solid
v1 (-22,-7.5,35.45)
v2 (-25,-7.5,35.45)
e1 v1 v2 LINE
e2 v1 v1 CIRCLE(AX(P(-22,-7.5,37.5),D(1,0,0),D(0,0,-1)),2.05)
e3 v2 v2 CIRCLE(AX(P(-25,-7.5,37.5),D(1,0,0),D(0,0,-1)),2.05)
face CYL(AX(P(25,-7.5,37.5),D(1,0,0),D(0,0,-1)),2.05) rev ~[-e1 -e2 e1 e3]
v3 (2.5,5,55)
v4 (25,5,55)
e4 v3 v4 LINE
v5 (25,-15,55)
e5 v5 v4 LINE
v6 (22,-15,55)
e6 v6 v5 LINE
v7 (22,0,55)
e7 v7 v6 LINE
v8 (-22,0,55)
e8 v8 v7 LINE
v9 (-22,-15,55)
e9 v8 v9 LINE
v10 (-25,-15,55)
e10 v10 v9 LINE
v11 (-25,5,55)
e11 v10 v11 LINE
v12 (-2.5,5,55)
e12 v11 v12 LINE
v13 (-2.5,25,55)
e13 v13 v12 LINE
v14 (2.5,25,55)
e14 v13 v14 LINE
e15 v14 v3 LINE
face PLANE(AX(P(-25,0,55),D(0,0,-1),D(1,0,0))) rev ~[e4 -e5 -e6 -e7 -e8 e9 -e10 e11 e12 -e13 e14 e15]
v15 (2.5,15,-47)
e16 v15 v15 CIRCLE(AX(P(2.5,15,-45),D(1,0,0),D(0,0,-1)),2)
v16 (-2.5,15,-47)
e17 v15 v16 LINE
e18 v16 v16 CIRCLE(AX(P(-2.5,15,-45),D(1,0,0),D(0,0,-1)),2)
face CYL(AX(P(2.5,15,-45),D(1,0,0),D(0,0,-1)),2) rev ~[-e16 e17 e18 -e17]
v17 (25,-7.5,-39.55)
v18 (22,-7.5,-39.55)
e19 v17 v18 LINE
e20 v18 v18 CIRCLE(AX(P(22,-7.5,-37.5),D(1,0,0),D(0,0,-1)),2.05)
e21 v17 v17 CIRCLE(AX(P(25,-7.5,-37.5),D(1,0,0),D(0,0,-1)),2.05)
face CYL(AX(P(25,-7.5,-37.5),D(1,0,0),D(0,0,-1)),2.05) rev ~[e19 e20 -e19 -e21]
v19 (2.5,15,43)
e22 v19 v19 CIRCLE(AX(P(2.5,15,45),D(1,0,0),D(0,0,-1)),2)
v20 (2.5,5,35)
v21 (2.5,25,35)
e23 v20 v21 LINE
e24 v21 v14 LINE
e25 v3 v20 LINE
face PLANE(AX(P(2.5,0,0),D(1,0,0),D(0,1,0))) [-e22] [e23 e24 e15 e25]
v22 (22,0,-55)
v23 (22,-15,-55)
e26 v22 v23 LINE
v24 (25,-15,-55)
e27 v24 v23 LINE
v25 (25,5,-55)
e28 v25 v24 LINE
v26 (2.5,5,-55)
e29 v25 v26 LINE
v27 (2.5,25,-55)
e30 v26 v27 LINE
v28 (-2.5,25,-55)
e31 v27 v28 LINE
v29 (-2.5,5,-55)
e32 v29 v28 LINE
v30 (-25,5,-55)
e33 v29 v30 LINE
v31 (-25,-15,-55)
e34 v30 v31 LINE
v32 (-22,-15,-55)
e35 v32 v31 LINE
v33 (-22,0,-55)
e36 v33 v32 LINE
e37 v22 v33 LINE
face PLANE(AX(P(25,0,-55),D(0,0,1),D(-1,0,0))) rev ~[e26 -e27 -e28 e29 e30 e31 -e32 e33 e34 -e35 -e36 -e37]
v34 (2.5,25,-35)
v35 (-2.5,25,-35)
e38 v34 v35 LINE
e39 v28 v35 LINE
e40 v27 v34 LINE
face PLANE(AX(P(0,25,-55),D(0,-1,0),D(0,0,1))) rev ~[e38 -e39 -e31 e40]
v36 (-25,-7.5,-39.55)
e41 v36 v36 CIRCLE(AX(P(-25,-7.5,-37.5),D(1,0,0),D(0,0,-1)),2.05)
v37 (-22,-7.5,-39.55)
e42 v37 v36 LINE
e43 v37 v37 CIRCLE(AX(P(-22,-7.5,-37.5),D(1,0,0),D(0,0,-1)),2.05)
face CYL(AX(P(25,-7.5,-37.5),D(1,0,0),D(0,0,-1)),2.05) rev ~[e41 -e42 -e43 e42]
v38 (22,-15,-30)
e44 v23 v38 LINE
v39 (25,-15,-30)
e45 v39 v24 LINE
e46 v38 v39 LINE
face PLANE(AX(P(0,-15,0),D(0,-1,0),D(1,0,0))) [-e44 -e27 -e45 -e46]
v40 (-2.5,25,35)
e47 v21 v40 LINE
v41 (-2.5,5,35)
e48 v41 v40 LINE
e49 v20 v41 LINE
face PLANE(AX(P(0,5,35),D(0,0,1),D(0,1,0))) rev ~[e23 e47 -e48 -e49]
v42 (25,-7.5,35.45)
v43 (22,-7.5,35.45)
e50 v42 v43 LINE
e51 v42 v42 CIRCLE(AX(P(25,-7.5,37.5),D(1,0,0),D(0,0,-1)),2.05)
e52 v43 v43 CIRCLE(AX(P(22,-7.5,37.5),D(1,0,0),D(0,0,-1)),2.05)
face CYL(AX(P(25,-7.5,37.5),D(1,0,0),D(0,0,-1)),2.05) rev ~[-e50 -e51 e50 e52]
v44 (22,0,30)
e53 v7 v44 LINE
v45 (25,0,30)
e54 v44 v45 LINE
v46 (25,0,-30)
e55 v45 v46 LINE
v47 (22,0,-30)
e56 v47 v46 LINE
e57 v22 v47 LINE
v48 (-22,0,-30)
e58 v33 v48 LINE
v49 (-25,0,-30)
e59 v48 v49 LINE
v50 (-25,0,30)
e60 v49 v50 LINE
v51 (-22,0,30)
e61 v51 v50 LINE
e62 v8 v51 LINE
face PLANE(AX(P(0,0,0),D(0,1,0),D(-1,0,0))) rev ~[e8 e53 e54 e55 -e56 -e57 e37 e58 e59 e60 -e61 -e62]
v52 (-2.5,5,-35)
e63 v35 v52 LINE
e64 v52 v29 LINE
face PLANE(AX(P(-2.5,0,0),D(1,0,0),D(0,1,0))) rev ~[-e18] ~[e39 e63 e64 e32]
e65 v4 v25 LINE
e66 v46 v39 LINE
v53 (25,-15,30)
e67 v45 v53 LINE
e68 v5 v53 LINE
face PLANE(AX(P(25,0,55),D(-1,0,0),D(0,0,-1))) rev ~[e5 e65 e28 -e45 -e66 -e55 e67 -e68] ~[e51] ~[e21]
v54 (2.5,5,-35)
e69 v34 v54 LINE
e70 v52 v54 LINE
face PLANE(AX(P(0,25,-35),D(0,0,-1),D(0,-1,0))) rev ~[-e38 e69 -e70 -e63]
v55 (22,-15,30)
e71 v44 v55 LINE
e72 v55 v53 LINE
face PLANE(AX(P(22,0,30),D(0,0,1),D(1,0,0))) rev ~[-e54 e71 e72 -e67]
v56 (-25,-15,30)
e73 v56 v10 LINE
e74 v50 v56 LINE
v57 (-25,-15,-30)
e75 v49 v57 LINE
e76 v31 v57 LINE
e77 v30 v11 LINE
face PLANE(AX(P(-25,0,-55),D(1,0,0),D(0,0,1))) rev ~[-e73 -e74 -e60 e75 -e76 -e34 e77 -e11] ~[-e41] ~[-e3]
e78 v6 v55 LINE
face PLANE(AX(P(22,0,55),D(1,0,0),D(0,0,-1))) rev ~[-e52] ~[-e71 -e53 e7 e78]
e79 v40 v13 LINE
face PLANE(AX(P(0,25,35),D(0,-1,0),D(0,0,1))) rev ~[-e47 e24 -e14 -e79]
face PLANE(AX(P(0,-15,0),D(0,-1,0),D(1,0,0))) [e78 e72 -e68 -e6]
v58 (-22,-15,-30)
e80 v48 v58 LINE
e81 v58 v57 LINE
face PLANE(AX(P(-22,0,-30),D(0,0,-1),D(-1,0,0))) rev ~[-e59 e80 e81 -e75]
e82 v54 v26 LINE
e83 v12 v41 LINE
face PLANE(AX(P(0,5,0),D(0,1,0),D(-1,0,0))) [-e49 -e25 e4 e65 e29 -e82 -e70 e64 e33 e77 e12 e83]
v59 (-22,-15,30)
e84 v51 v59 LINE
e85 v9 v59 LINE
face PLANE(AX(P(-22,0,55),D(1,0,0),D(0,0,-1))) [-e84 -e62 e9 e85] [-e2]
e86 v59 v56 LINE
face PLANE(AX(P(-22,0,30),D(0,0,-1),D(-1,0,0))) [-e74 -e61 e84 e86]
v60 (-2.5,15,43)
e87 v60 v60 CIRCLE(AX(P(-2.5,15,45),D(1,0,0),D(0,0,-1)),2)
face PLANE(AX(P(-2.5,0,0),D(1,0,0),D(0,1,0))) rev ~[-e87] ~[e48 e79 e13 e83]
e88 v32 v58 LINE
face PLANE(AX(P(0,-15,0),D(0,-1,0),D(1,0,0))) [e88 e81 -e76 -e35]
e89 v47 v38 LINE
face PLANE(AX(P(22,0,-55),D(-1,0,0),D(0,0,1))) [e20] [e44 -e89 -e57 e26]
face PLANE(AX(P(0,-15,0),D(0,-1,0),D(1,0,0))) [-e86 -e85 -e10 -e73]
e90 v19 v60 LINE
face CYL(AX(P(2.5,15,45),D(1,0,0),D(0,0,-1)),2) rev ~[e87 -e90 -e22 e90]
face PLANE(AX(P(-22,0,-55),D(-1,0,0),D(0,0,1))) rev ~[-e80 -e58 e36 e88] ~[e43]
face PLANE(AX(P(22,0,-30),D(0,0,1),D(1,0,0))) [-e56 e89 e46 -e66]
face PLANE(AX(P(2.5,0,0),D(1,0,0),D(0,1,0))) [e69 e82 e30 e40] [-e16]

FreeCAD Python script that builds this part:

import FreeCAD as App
import Part
import Sketcher
from FreeCAD import Vector
Q = App.Units.Quantity


def add_polygon(sketch, points):
    """Adds a closed chain of lines whose ends are joined by coincident constraints."""
    first, n = sketch.GeometryCount, len(points)
    for a, b in zip(points, points[1:] + points[:1]):
        sketch.addGeometry(Part.LineSegment(App.Vector(*a, 0), App.Vector(*b, 0)), False)
    for i in range(n):
        sketch.addConstraint(Sketcher.Constraint("Coincident", first + i, 2, first + (i + 1) % n, 1))

doc = App.newDocument("Part")
params = doc.addObject("Spreadsheet::Sheet", "Params")
for row, (alias, value) in enumerate([
    ("sketch1_width", "50 mm"),
    ("sketch1_height", "110 mm"),
    ("pad1_length", "5 mm"),
    ("sketch2_width", "3 mm"),
    ("sketch2_height", "25 mm"),
    ("pad2_length", "15 mm"),
    ("sketch3_diameter", "4.1 mm"),
    ("sketch4_width", "20 mm"),
    ("pad3_length", "5 mm"),
    ("sketch5_diameter", "4 mm"),
    ("pocket2_length", "5 mm"),
], start=1):
    params.set(f"A{row}", alias)
    params.set(f"B{row}", "=" + value)
    params.setAlias(f"B{row}", alias)

body = doc.addObject("PartDesign::Body", "Body")

# Sketch on XZ plane
sketch1 = body.newObject("Sketcher::SketchObject", "Sketch")
sketch1.AttachmentSupport = (doc.getObject("XZ_Plane"), [""])
sketch1.MapMode = "FlatFace"
add_polygon(sketch1, [(-25, -55), (-25, 55), (25, 55), (25, -55)])  # lines 0-3
sketch1.addConstraint(Sketcher.Constraint("Vertical", 0))
sketch1.addConstraint(Sketcher.Constraint("Horizontal", 1))
sketch1.addConstraint(Sketcher.Constraint("Vertical", 2))
sketch1.addConstraint(Sketcher.Constraint("Horizontal", 3))
sketch1.addConstraint(Sketcher.Constraint("Symmetric", 0, 2, 2, 2, -1, 1))
sketch1.addConstraint(Sketcher.Constraint("DistanceX", 1, 1, 1, 2, Q("50 mm")))
sketch1.addConstraint(Sketcher.Constraint("DistanceY", 0, 1, 0, 2, Q("110 mm")))
sketch1.setExpression("Constraints[9]", "Params.sketch1_width")
sketch1.setExpression("Constraints[10]", "Params.sketch1_height")
pad1 = body.newObject("PartDesign::Pad", "Pad")
pad1.Profile = sketch1
pad1.setExpression("Length", "Params.pad1_length")
pad1.Reversed = True

# Sketch on XZ plane
sketch2 = body.newObject("Sketcher::SketchObject", "Sketch001")
sketch2.AttachmentSupport = (doc.getObject("XZ_Plane"), [""])
sketch2.MapMode = "FlatFace"
add_polygon(sketch2, [(25, 30), (25, 55), (22, 55), (22, 30)])  # lines 0-3
add_polygon(sketch2, [(25, -55), (25, -30), (22, -30), (22, -55)])  # lines 4-7
add_polygon(sketch2, [(-22, 30), (-22, 55), (-25, 55), (-25, 30)])  # lines 8-11
add_polygon(sketch2, [(-25, -55), (-22, -55), (-22, -30), (-25, -30)])  # lines 12-15
sketch2.addConstraint(Sketcher.Constraint("Vertical", 0))
sketch2.addConstraint(Sketcher.Constraint("Horizontal", 1))
sketch2.addConstraint(Sketcher.Constraint("Vertical", 2))
sketch2.addConstraint(Sketcher.Constraint("Horizontal", 3))
sketch2.addConstraint(Sketcher.Constraint("Vertical", 4))
sketch2.addConstraint(Sketcher.Constraint("Horizontal", 5))
sketch2.addConstraint(Sketcher.Constraint("Vertical", 6))
sketch2.addConstraint(Sketcher.Constraint("Horizontal", 7))
sketch2.addConstraint(Sketcher.Constraint("Vertical", 8))
sketch2.addConstraint(Sketcher.Constraint("Horizontal", 9))
sketch2.addConstraint(Sketcher.Constraint("Vertical", 10))
sketch2.addConstraint(Sketcher.Constraint("Horizontal", 11))
sketch2.addConstraint(Sketcher.Constraint("Horizontal", 12))
sketch2.addConstraint(Sketcher.Constraint("Vertical", 13))
sketch2.addConstraint(Sketcher.Constraint("Horizontal", 14))
sketch2.addConstraint(Sketcher.Constraint("Vertical", 15))
sketch2.addConstraint(Sketcher.Constraint("Symmetric", 6, 2, 8, 2, -1, 1))
sketch2.addConstraint(Sketcher.Constraint("Symmetric", 4, 2, 10, 2, -1, 1))
sketch2.addConstraint(Sketcher.Constraint("Symmetric", 1, 2, 12, 2, -1, 1))
sketch2.addConstraint(Sketcher.Constraint("Symmetric", 3, 2, 14, 2, -1, 1))
sketch2.addConstraint(Sketcher.Constraint("Symmetric", 1, 2, 8, 2, -2))
sketch2.addConstraint(Sketcher.Constraint("Symmetric", 3, 2, 10, 2, -2))
sketch2.addConstraint(Sketcher.Constraint("DistanceX", 1, 2, 1, 1, Q("3 mm")))
sketch2.addConstraint(Sketcher.Constraint("DistanceY", 0, 1, 0, 2, Q("25 mm")))
sketch2.addConstraint(Sketcher.Constraint("DistanceX", -1, 1, 0, 2, Q("25 mm")))
sketch2.addConstraint(Sketcher.Constraint("DistanceY", -1, 1, 0, 2, Q("55 mm")))
sketch2.setExpression("Constraints[38]", "Params.sketch2_width")
sketch2.setExpression("Constraints[39]", "Params.sketch2_height")
pad2 = body.newObject("PartDesign::Pad", "Pad001")
pad2.Profile = sketch2
pad2.setExpression("Length", "Params.pad2_length")

# Sketch on YZ plane
sketch3 = body.newObject("Sketcher::SketchObject", "Sketch002")
sketch3.AttachmentSupport = (doc.getObject("YZ_Plane"), [""])
sketch3.MapMode = "FlatFace"
sketch3.AttachmentOffset = App.Placement(Vector(0, 0, 25), App.Rotation())
sketch3.addGeometry(Part.Circle(Vector(-7.5, 37.5, 0), Vector(0, 0, 1), 2.05), False)
sketch3.addGeometry(Part.Circle(Vector(-7.5, -37.5, 0), Vector(0, 0, 1), 2.05), False)
sketch3.addConstraint(Sketcher.Constraint("Equal", 0, 1))
sketch3.addConstraint(Sketcher.Constraint("Symmetric", 0, 3, 1, 3, -1))
sketch3.addConstraint(Sketcher.Constraint("Diameter", 0, Q("4.1 mm")))
sketch3.addConstraint(Sketcher.Constraint("DistanceX", 0, 3, -1, 1, Q("7.5 mm")))
sketch3.addConstraint(Sketcher.Constraint("DistanceY", 1, 3, 0, 3, Q("75 mm")))
sketch3.setExpression("Constraints[2]", "Params.sketch3_diameter")
pocket1 = body.newObject("PartDesign::Pocket", "Pocket")
pocket1.Profile = sketch3
pocket1.Type = "ThroughAll"

# Sketch on YZ plane
sketch4 = body.newObject("Sketcher::SketchObject", "Sketch003")
sketch4.AttachmentSupport = (doc.getObject("YZ_Plane"), [""])
sketch4.MapMode = "FlatFace"
add_polygon(sketch4, [(25, 35), (25, 55), (5, 55), (5, 35)])  # lines 0-3
add_polygon(sketch4, [(25, -35), (5, -35), (5, -55), (25, -55)])  # lines 4-7
sketch4.addConstraint(Sketcher.Constraint("Vertical", 0))
sketch4.addConstraint(Sketcher.Constraint("Horizontal", 1))
sketch4.addConstraint(Sketcher.Constraint("Vertical", 2))
sketch4.addConstraint(Sketcher.Constraint("Horizontal", 3))
sketch4.addConstraint(Sketcher.Constraint("Horizontal", 4))
sketch4.addConstraint(Sketcher.Constraint("Vertical", 5))
sketch4.addConstraint(Sketcher.Constraint("Horizontal", 6))
sketch4.addConstraint(Sketcher.Constraint("Vertical", 7))
sketch4.addConstraint(Sketcher.Constraint("Symmetric", 2, 2, 4, 2, -1))
sketch4.addConstraint(Sketcher.Constraint("Symmetric", 0, 2, 6, 2, -1))
sketch4.addConstraint(Sketcher.Constraint("Equal", 6, 0))
sketch4.addConstraint(Sketcher.Constraint("DistanceX", 1, 2, 1, 1, Q("20 mm")))
sketch4.addConstraint(Sketcher.Constraint("DistanceX", -1, 1, 0, 2, Q("25 mm")))
sketch4.addConstraint(Sketcher.Constraint("DistanceY", -1, 1, 0, 2, Q("55 mm")))
sketch4.setExpression("Constraints[19]", "Params.sketch4_width")
pad3 = body.newObject("PartDesign::Pad", "Pad002")
pad3.Profile = sketch4
pad3.setExpression("Length", "Params.pad3_length")
pad3.Midplane = True

# Sketch on YZ plane
sketch5 = body.newObject("Sketcher::SketchObject", "Sketch004")
sketch5.AttachmentSupport = (doc.getObject("YZ_Plane"), [""])
sketch5.MapMode = "FlatFace"
sketch5.AttachmentOffset = App.Placement(Vector(0, 0, 2.5), App.Rotation())
sketch5.addGeometry(Part.Circle(Vector(15, 45, 0), Vector(0, 0, 1), 2), False)
sketch5.addGeometry(Part.Circle(Vector(15, -45, 0), Vector(0, 0, 1), 2), False)
sketch5.addConstraint(Sketcher.Constraint("Equal", 0, 1))
sketch5.addConstraint(Sketcher.Constraint("Symmetric", 0, 3, 1, 3, -1))
sketch5.addConstraint(Sketcher.Constraint("Diameter", 0, Q("4 mm")))
sketch5.addConstraint(Sketcher.Constraint("DistanceX", -1, 1, 0, 3, Q("15 mm")))
sketch5.addConstraint(Sketcher.Constraint("DistanceY", -1, 1, 0, 3, Q("45 mm")))
sketch5.setExpression("Constraints[2]", "Params.sketch5_diameter")
pocket2 = body.newObject("PartDesign::Pocket", "Pocket001")
pocket2.Profile = sketch5
pocket2.setExpression("Length", "Params.pocket2_length")

doc.recompute()
